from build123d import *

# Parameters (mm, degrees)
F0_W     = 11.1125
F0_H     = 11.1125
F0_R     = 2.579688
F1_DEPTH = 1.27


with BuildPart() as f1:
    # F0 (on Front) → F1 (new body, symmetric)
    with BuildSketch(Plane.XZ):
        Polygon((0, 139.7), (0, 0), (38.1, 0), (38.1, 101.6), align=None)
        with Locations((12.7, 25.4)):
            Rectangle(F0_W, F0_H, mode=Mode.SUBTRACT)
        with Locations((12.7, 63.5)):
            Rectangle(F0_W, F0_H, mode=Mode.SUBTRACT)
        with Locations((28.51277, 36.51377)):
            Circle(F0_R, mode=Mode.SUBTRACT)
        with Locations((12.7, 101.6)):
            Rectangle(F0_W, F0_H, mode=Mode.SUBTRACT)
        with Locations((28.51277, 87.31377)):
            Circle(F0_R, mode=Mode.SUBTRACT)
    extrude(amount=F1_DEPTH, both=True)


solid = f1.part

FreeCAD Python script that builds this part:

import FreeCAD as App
import Part
import Sketcher
from FreeCAD import Vector
Q = App.Units.Quantity


def add_polygon(sketch, points):
    """Adds a closed chain of lines whose ends are joined by coincident constraints."""
    first, n = sketch.GeometryCount, len(points)
    for a, b in zip(points, points[1:] + points[:1]):
        sketch.addGeometry(Part.LineSegment(App.Vector(*a, 0), App.Vector(*b, 0)), False)
    for i in range(n):
        sketch.addConstraint(Sketcher.Constraint("Coincident", first + i, 2, first + (i + 1) % n, 1))

doc = App.newDocument("Part")
body = doc.addObject("PartDesign::Body", "Body")

# Sketch on XZ plane
sketch1 = body.newObject("Sketcher::SketchObject", "Sketch")
sketch1.AttachmentSupport = (doc.getObject("XZ_Plane"), [""])
sketch1.MapMode = "FlatFace"
add_polygon(sketch1, [(0, 139.7), (0, 0), (38.1, 0), (38.1, 101.6)])  # lines 0-3
add_polygon(sketch1, [(18.3, 19.8), (7.1, 19.8), (7.1, 31), (18.3, 31)])  # lines 4-7
sketch1.addGeometry(Part.Circle(Vector(28.5, 36.5, 0), Vector(0, 0, 1), 2.6), False)  # 8
add_polygon(sketch1, [(18.3, 57.9), (7.1, 57.9), (7.1, 69.1), (18.3, 69.1)])  # lines 9-12
add_polygon(sketch1, [(18.3, 96), (7.1, 96), (7.1, 107.2), (18.3, 107.2)])  # lines 13-16
sketch1.addGeometry(Part.Circle(Vector(28.5, 87.3, 0), Vector(0, 0, 1), 2.6), False)  # 17
sketch1.addConstraint([
    Sketcher.Constraint("Vertical", 0),
    Sketcher.Constraint("Horizontal", 1),
    Sketcher.Constraint("Vertical", 2),
    Sketcher.Constraint("Horizontal", 4),
    Sketcher.Constraint("Vertical", 5),
    Sketcher.Constraint("Horizontal", 6),
    Sketcher.Constraint("Vertical", 7),
    Sketcher.Constraint("Horizontal", 9),
    Sketcher.Constraint("Vertical", 10),
    Sketcher.Constraint("Horizontal", 11),
    Sketcher.Constraint("Vertical", 12),
    Sketcher.Constraint("Horizontal", 13),
    Sketcher.Constraint("Vertical", 14),
    Sketcher.Constraint("Horizontal", 15),
    Sketcher.Constraint("Vertical", 16),
    Sketcher.Constraint("Coincident", 0, 2, -1, 1),
    Sketcher.Constraint("Equal", 8, 17),
    Sketcher.Constraint("Vertical", 8, 3, 17, 3),
    Sketcher.Constraint("Vertical", 5, 2, 9, 2),
    Sketcher.Constraint("Vertical", 7, 2, 11, 2),
    Sketcher.Constraint("Vertical", 10, 2, 13, 2),
    Sketcher.Constraint("Vertical", 12, 2, 15, 2),
    Sketcher.Constraint("Equal", 15, 5),
    Sketcher.Constraint("Equal", 7, 10),
    Sketcher.Constraint("Equal", 12, 14),
    Sketcher.Constraint("DistanceY", 2, 1, 2, 2, Q("4 in")),
    Sketcher.Constraint("Diameter", 8, Q("0.203125 in")),
    Sketcher.Constraint("DistanceX", 1, 1, 1, 2, Q("1.5 in")),
    Sketcher.Constraint("DistanceY", 0, 2, 0, 1, Q("5.5 in")),
    Sketcher.Constraint("DistanceY", 8, 3, 17, 3, Q("2 in")),
    Sketcher.Constraint("DistanceY", 4, 2, 9, 2, Q("1.5 in")),
    Sketcher.Constraint("DistanceY", 9, 2, 13, 2, Q("1.5 in")),
    Sketcher.Constraint("DistanceX", 4, 2, 4, 1, Q("0.4375 in")),
    Sketcher.Constraint("DistanceX", -1, 1, 4, 2, Q("0.28125 in")),
    Sketcher.Constraint("DistanceY", -1, 1, 4, 2, Q("0.78125 in")),
    Sketcher.Constraint("DistanceX", 4, 2, 8, 3, Q("0.8413 in")),
    Sketcher.Constraint("DistanceY", 4, 2, 8, 3, Q("0.6563 in")),
])
pad1 = body.newObject("PartDesign::Pad", "Pad")
pad1.Profile = sketch1
pad1.Length = Q("0.1 in")
pad1.Midplane = True

doc.recompute()
